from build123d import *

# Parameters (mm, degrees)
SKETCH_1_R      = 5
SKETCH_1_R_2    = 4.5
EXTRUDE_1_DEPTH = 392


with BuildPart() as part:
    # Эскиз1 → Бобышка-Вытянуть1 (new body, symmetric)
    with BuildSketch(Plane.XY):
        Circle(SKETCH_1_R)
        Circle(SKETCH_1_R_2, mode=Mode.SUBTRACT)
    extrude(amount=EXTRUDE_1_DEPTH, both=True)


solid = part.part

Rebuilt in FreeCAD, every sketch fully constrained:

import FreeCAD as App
import Part
import Sketcher

V = App.Vector

doc = App.newDocument("Part")
body = doc.addObject("PartDesign::Body", "Body")

# Sketch on XY plane
sketch1 = body.newObject("Sketcher::SketchObject", "Sketch")
sketch1.AttachmentSupport = (doc.getObject("XY_Plane"), [""])
sketch1.MapMode = "FlatFace"
sketch1.addGeometry([
    Part.Circle(V(0, 0, 0), V(0, 0, 1), 5),
    Part.Circle(V(0, 0, 0), V(0, 0, 1), 4.5),
], False)
sketch1.addConstraint([
    Sketcher.Constraint("Coincident", 0, 3, -1, 1),
    Sketcher.Constraint("Coincident", 1, 3, -1, 1),
    Sketcher.Constraint("Diameter", 0, 10.0),
    Sketcher.Constraint("Diameter", 1, 9.0),
])
pad1 = body.newObject("PartDesign::Pad", "Pad")
pad1.Profile = sketch1
pad1.Length = 784
pad1.Midplane = True

doc.recompute()
